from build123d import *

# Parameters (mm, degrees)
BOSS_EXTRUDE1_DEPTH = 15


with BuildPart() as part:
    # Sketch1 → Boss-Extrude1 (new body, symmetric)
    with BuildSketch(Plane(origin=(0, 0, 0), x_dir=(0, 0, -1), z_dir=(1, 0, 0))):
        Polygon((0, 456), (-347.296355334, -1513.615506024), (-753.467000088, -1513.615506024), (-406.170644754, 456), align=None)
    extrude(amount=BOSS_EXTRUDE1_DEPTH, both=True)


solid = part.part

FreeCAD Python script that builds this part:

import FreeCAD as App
import Part
import Sketcher

V = App.Vector
Q = App.Units.Quantity

doc = App.newDocument("Part")
body = doc.addObject("PartDesign::Body", "Body")

# Sketch on YZ plane
sketch1 = body.newObject("Sketcher::SketchObject", "Sketch")
sketch1.AttachmentSupport = (doc.getObject("YZ_Plane"), [""])
sketch1.MapMode = "FlatFace"
sketch1.addGeometry([
    Part.LineSegment(V(-1514, 347, 0), V(456, 0, 0)),
    Part.LineSegment(V(456, 0, 0), V(456, 406, 0)),
    Part.LineSegment(V(456, 406, 0), V(-1514, 753, 0)),
    Part.LineSegment(V(-1514, 753, 0), V(-1514, 347, 0)),
], False)
sketch1.addConstraint([
    Sketcher.Constraint("Coincident", 0, 2, 1, 1),
    Sketcher.Constraint("Coincident", 1, 2, 2, 1),
    Sketcher.Constraint("Coincident", 2, 2, 3, 1),
    Sketcher.Constraint("Coincident", 3, 2, 0, 1),
    Sketcher.Constraint("Vertical", 1),
    Sketcher.Constraint("Vertical", 3),
    Sketcher.Constraint("PointOnObject", 0, 2, -1),
    Sketcher.Constraint("Parallel", 0, 2),
    Sketcher.Constraint("Angle", 0, Q("-10 deg")),
    Sketcher.Constraint("Distance", 0, Q("2000 mm")),
    Sketcher.Constraint("DistanceX", -1, 1, 0, 2, Q("456 mm")),
    Sketcher.Constraint("DistanceY", -1, 1, 2, 2, Q("753.467 mm")),
])
pad1 = body.newObject("PartDesign::Pad", "Pad")
pad1.Profile = sketch1
pad1.Length = 30
pad1.Midplane = True

doc.recompute()
